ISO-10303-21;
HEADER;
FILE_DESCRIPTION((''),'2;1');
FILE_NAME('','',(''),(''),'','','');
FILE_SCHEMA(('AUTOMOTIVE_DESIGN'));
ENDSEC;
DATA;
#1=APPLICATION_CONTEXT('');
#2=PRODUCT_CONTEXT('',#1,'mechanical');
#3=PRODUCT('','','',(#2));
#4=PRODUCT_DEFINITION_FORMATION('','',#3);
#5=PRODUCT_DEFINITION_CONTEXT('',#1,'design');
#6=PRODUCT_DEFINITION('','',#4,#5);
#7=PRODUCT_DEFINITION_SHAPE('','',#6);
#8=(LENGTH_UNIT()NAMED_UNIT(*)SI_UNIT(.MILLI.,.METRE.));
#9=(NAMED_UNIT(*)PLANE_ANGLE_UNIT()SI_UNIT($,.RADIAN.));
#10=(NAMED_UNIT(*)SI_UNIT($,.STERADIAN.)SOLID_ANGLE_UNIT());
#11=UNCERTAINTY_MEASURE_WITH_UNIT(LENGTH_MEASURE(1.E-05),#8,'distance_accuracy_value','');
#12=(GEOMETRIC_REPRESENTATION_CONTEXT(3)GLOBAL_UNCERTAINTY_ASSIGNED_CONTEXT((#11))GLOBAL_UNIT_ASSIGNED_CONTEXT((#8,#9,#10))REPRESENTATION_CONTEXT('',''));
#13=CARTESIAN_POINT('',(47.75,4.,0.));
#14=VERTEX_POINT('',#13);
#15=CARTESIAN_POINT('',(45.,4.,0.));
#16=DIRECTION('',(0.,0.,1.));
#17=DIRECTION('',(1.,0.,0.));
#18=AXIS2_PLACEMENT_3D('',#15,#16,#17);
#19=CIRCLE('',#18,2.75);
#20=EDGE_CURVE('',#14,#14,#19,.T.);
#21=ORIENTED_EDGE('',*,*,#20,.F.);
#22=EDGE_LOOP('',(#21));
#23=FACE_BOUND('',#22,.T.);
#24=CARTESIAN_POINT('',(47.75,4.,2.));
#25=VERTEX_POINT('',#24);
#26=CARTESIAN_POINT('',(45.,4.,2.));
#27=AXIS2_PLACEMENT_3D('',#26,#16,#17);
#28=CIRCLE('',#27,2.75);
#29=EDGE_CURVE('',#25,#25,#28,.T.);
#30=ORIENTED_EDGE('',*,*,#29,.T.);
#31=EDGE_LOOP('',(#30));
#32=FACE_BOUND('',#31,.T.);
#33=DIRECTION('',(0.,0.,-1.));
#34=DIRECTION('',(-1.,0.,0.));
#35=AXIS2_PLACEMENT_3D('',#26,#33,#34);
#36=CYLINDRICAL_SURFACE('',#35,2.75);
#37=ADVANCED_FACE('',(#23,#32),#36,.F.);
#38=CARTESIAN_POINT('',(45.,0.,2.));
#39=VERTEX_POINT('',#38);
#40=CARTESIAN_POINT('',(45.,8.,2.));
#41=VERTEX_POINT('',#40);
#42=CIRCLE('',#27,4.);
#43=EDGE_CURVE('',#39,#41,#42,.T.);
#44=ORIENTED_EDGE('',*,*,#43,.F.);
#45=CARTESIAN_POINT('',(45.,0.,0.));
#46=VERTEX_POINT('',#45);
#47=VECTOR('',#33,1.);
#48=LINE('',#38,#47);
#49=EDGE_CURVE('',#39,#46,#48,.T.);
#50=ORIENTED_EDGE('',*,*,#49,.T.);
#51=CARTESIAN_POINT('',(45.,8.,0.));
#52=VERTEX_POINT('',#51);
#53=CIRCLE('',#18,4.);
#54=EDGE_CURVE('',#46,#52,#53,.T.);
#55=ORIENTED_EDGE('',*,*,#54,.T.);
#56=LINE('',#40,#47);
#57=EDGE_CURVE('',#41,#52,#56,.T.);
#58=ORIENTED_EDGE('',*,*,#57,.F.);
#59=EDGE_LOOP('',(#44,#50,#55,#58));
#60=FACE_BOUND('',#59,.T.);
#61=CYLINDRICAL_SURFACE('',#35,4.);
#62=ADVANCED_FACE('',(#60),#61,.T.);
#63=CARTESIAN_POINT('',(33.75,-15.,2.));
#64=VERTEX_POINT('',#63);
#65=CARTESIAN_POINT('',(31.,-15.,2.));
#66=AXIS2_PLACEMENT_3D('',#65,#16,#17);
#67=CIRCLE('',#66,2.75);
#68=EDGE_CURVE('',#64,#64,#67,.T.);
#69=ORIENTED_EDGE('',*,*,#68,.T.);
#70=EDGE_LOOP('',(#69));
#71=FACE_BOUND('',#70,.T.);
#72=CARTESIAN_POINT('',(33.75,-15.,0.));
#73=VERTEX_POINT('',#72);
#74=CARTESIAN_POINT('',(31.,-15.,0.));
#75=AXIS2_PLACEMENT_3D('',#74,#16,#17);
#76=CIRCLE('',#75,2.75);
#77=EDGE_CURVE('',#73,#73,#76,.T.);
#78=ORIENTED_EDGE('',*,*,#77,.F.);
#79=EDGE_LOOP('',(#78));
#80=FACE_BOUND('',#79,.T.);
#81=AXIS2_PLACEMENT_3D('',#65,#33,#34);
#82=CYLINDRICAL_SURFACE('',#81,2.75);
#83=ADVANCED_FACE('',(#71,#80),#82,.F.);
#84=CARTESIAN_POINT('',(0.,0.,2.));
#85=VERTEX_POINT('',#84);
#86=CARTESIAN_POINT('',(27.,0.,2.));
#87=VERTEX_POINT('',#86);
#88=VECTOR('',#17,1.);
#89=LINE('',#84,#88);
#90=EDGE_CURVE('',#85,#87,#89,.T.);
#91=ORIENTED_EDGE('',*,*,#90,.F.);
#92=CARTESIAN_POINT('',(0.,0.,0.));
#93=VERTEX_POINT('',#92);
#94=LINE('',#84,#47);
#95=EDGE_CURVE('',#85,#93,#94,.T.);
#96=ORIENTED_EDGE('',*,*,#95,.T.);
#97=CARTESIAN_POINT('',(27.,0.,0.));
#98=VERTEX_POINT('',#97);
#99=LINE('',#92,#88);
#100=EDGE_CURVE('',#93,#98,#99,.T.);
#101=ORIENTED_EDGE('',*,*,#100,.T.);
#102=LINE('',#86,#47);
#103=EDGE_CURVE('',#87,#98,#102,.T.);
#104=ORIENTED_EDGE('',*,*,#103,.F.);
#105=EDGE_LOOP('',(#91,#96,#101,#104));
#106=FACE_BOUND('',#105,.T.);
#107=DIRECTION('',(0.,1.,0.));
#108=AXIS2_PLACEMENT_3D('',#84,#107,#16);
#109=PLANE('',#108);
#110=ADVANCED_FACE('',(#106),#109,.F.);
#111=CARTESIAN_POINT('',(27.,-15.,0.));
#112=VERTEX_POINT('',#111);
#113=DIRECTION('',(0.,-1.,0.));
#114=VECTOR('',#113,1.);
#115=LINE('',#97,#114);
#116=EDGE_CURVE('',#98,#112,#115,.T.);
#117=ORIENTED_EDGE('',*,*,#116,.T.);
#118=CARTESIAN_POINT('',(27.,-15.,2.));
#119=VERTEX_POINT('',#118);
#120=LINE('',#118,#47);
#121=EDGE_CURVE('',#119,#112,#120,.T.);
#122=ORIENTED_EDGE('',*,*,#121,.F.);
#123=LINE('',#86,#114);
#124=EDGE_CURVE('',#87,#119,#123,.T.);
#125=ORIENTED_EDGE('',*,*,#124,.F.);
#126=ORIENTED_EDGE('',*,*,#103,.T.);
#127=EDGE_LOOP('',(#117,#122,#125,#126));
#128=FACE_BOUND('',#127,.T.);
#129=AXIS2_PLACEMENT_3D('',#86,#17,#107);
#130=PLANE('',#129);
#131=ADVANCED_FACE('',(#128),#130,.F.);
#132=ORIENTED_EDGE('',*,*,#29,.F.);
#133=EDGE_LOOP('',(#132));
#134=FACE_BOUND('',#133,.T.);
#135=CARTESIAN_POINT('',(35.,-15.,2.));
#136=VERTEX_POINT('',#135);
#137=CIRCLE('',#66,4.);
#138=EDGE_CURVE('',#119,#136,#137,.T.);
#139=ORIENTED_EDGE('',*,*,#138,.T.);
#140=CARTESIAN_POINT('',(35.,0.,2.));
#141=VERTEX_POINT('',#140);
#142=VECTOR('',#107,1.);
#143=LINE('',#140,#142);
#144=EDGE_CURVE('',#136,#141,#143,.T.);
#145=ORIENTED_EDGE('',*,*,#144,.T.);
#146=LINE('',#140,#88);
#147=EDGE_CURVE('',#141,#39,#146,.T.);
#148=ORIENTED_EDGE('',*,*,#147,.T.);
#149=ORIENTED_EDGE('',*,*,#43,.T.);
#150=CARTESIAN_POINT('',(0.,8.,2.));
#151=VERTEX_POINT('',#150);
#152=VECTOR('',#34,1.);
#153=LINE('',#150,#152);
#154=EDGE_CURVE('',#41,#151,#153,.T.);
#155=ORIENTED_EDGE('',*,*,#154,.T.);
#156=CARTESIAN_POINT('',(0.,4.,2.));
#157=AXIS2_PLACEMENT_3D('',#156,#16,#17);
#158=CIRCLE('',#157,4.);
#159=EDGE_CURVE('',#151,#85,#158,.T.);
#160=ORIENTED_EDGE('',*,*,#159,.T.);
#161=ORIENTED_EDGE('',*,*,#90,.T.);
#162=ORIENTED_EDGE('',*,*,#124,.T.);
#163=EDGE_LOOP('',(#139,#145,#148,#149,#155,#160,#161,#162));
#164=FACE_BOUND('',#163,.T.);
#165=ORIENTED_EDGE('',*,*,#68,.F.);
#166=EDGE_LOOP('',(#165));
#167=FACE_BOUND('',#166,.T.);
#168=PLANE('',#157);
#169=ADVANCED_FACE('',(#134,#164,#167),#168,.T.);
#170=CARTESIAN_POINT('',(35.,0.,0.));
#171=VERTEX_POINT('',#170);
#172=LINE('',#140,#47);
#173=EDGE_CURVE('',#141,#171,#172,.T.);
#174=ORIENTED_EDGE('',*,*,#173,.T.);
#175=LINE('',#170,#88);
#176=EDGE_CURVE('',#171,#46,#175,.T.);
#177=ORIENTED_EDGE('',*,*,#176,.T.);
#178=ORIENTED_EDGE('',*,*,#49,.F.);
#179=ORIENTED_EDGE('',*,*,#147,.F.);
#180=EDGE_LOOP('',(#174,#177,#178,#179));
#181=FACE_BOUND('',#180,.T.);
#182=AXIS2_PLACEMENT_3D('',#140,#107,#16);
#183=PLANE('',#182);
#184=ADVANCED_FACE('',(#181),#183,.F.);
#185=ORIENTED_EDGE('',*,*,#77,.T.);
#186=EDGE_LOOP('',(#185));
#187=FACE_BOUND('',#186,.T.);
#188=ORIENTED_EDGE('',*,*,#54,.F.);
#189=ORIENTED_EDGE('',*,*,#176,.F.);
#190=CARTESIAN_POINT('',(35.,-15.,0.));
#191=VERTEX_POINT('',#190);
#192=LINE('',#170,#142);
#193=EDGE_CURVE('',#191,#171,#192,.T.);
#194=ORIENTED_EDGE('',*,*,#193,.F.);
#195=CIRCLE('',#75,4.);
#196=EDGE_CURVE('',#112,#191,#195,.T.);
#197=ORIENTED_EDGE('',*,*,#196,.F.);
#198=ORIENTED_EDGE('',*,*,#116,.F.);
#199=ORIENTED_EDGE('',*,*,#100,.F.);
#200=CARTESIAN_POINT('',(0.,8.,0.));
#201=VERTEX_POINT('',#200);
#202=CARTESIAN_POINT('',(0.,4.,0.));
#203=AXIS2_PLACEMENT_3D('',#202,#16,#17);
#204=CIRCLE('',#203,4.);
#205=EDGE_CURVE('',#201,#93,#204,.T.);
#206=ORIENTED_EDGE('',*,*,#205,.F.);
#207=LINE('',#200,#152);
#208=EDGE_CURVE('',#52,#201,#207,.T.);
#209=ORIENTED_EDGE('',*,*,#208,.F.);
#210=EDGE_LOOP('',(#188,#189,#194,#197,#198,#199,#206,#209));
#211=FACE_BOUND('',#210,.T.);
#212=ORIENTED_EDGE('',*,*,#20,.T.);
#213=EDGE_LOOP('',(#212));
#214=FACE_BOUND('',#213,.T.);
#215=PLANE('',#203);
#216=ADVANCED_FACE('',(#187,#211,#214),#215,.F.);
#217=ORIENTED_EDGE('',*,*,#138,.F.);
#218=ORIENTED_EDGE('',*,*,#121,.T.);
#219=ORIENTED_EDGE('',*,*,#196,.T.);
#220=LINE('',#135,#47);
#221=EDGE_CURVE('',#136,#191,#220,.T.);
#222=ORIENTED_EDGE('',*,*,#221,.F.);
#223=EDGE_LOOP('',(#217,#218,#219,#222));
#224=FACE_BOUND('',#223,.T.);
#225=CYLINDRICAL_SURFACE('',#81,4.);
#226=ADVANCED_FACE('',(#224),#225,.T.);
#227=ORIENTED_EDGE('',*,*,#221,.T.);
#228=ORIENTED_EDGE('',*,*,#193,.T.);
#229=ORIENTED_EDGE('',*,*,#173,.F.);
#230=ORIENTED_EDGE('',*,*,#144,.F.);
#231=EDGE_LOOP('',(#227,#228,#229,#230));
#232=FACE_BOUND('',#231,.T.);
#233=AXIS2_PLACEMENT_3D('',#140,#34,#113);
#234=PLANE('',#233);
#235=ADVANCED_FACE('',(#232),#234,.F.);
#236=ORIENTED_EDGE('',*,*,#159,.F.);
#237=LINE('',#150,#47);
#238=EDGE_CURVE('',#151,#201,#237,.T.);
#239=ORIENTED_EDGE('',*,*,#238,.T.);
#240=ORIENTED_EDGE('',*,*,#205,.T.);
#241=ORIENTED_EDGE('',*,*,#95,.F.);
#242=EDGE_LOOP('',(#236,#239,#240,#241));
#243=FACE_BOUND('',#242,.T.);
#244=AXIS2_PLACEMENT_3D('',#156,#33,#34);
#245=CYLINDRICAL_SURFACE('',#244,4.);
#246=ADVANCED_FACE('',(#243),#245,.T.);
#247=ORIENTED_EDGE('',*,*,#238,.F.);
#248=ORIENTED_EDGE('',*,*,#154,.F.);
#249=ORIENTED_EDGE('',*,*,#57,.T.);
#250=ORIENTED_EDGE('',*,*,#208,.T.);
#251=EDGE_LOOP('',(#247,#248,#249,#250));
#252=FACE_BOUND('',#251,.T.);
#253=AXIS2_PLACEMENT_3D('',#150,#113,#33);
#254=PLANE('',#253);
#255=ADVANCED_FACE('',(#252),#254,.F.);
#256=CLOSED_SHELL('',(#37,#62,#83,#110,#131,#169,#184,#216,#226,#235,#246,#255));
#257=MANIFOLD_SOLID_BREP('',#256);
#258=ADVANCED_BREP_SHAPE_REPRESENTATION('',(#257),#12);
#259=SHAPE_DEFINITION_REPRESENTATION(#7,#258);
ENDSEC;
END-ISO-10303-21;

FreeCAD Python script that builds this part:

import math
import FreeCAD as App
import Part
import Sketcher

doc = App.newDocument("Part")
body = doc.addObject("PartDesign::Body", "Body")

sketch1 = body.newObject("Sketcher::SketchObject", "Sketch")
sketch1.AttachmentSupport = (doc.getObject("XY_Plane"), [""])
sketch1.MapMode = "FlatFace"
sketch1.addGeometry(Part.LineSegment(App.Vector(35, 0, 0), App.Vector(45, 0, 0)), False)
sketch1.addGeometry(Part.ArcOfCircle(Part.Circle(App.Vector(45, 4, 0), App.Vector(0, 0, 1), 4), math.radians(-90), math.radians(90)), False)
sketch1.addGeometry(Part.LineSegment(App.Vector(45, 8, 0), App.Vector(0, 8, 0)), False)
sketch1.addGeometry(Part.ArcOfCircle(Part.Circle(App.Vector(0, 4, 0), App.Vector(0, 0, 1), 4), math.radians(90), math.radians(270)), False)
sketch1.addGeometry(Part.LineSegment(App.Vector(0, 0, 0), App.Vector(27, 0, 0)), False)
sketch1.addGeometry(Part.LineSegment(App.Vector(27, 0, 0), App.Vector(27, -15, 0)), False)
sketch1.addGeometry(Part.ArcOfCircle(Part.Circle(App.Vector(31, -15, 0), App.Vector(0, 0, 1), 4), math.radians(180), math.radians(360)), False)
sketch1.addGeometry(Part.LineSegment(App.Vector(35, -15, 0), App.Vector(35, 0, 0)), False)
sketch1.addGeometry(Part.Circle(App.Vector(31, -15, 0), App.Vector(0, 0, 1), 2.75), False)
sketch1.addGeometry(Part.Circle(App.Vector(45, 4, 0), App.Vector(0, 0, 1), 2.75), False)
sketch1.addConstraint(Sketcher.Constraint("Tangent", 0, 2, 1, 1))
sketch1.addConstraint(Sketcher.Constraint("Tangent", 1, 2, 2, 1))
sketch1.addConstraint(Sketcher.Constraint("Tangent", 2, 2, 3, 1))
sketch1.addConstraint(Sketcher.Constraint("Tangent", 3, 2, 4, 1))
sketch1.addConstraint(Sketcher.Constraint("Coincident", 4, 2, 5, 1))
sketch1.addConstraint(Sketcher.Constraint("Tangent", 5, 2, 6, 1))
sketch1.addConstraint(Sketcher.Constraint("Tangent", 6, 2, 7, 1))
sketch1.addConstraint(Sketcher.Constraint("Coincident", 7, 2, 0, 1))
sketch1.addConstraint(Sketcher.Constraint("Horizontal", 0))
sketch1.addConstraint(Sketcher.Constraint("Horizontal", 2))
sketch1.addConstraint(Sketcher.Constraint("Horizontal", 4))
sketch1.addConstraint(Sketcher.Constraint("Vertical", 5))
sketch1.addConstraint(Sketcher.Constraint("Vertical", 7))
sketch1.addConstraint(Sketcher.Constraint("Coincident", 3, 2, -1, 1))
sketch1.addConstraint(Sketcher.Constraint("Coincident", 8, 3, 6, 3))
sketch1.addConstraint(Sketcher.Constraint("Coincident", 9, 3, 1, 3))
sketch1.addConstraint(Sketcher.Constraint("Equal", 1, 3))
sketch1.addConstraint(Sketcher.Constraint("Equal", 3, 6))
sketch1.addConstraint(Sketcher.Constraint("Equal", 8, 9))
sketch1.addConstraint(Sketcher.Constraint("Radius", 1, 4.0))
sketch1.addConstraint(Sketcher.Constraint("Diameter", 8, 5.5))
sketch1.addConstraint(Sketcher.Constraint("DistanceX", 0, 1, 0, 2, 10.0))
sketch1.addConstraint(Sketcher.Constraint("DistanceX", 2, 2, 2, 1, 45.0))
sketch1.addConstraint(Sketcher.Constraint("DistanceY", 5, 2, 5, 1, 15.0))
pad1 = body.newObject("PartDesign::Pad", "Pad")
pad1.Profile = sketch1
pad1.Length = 2

doc.recompute()
